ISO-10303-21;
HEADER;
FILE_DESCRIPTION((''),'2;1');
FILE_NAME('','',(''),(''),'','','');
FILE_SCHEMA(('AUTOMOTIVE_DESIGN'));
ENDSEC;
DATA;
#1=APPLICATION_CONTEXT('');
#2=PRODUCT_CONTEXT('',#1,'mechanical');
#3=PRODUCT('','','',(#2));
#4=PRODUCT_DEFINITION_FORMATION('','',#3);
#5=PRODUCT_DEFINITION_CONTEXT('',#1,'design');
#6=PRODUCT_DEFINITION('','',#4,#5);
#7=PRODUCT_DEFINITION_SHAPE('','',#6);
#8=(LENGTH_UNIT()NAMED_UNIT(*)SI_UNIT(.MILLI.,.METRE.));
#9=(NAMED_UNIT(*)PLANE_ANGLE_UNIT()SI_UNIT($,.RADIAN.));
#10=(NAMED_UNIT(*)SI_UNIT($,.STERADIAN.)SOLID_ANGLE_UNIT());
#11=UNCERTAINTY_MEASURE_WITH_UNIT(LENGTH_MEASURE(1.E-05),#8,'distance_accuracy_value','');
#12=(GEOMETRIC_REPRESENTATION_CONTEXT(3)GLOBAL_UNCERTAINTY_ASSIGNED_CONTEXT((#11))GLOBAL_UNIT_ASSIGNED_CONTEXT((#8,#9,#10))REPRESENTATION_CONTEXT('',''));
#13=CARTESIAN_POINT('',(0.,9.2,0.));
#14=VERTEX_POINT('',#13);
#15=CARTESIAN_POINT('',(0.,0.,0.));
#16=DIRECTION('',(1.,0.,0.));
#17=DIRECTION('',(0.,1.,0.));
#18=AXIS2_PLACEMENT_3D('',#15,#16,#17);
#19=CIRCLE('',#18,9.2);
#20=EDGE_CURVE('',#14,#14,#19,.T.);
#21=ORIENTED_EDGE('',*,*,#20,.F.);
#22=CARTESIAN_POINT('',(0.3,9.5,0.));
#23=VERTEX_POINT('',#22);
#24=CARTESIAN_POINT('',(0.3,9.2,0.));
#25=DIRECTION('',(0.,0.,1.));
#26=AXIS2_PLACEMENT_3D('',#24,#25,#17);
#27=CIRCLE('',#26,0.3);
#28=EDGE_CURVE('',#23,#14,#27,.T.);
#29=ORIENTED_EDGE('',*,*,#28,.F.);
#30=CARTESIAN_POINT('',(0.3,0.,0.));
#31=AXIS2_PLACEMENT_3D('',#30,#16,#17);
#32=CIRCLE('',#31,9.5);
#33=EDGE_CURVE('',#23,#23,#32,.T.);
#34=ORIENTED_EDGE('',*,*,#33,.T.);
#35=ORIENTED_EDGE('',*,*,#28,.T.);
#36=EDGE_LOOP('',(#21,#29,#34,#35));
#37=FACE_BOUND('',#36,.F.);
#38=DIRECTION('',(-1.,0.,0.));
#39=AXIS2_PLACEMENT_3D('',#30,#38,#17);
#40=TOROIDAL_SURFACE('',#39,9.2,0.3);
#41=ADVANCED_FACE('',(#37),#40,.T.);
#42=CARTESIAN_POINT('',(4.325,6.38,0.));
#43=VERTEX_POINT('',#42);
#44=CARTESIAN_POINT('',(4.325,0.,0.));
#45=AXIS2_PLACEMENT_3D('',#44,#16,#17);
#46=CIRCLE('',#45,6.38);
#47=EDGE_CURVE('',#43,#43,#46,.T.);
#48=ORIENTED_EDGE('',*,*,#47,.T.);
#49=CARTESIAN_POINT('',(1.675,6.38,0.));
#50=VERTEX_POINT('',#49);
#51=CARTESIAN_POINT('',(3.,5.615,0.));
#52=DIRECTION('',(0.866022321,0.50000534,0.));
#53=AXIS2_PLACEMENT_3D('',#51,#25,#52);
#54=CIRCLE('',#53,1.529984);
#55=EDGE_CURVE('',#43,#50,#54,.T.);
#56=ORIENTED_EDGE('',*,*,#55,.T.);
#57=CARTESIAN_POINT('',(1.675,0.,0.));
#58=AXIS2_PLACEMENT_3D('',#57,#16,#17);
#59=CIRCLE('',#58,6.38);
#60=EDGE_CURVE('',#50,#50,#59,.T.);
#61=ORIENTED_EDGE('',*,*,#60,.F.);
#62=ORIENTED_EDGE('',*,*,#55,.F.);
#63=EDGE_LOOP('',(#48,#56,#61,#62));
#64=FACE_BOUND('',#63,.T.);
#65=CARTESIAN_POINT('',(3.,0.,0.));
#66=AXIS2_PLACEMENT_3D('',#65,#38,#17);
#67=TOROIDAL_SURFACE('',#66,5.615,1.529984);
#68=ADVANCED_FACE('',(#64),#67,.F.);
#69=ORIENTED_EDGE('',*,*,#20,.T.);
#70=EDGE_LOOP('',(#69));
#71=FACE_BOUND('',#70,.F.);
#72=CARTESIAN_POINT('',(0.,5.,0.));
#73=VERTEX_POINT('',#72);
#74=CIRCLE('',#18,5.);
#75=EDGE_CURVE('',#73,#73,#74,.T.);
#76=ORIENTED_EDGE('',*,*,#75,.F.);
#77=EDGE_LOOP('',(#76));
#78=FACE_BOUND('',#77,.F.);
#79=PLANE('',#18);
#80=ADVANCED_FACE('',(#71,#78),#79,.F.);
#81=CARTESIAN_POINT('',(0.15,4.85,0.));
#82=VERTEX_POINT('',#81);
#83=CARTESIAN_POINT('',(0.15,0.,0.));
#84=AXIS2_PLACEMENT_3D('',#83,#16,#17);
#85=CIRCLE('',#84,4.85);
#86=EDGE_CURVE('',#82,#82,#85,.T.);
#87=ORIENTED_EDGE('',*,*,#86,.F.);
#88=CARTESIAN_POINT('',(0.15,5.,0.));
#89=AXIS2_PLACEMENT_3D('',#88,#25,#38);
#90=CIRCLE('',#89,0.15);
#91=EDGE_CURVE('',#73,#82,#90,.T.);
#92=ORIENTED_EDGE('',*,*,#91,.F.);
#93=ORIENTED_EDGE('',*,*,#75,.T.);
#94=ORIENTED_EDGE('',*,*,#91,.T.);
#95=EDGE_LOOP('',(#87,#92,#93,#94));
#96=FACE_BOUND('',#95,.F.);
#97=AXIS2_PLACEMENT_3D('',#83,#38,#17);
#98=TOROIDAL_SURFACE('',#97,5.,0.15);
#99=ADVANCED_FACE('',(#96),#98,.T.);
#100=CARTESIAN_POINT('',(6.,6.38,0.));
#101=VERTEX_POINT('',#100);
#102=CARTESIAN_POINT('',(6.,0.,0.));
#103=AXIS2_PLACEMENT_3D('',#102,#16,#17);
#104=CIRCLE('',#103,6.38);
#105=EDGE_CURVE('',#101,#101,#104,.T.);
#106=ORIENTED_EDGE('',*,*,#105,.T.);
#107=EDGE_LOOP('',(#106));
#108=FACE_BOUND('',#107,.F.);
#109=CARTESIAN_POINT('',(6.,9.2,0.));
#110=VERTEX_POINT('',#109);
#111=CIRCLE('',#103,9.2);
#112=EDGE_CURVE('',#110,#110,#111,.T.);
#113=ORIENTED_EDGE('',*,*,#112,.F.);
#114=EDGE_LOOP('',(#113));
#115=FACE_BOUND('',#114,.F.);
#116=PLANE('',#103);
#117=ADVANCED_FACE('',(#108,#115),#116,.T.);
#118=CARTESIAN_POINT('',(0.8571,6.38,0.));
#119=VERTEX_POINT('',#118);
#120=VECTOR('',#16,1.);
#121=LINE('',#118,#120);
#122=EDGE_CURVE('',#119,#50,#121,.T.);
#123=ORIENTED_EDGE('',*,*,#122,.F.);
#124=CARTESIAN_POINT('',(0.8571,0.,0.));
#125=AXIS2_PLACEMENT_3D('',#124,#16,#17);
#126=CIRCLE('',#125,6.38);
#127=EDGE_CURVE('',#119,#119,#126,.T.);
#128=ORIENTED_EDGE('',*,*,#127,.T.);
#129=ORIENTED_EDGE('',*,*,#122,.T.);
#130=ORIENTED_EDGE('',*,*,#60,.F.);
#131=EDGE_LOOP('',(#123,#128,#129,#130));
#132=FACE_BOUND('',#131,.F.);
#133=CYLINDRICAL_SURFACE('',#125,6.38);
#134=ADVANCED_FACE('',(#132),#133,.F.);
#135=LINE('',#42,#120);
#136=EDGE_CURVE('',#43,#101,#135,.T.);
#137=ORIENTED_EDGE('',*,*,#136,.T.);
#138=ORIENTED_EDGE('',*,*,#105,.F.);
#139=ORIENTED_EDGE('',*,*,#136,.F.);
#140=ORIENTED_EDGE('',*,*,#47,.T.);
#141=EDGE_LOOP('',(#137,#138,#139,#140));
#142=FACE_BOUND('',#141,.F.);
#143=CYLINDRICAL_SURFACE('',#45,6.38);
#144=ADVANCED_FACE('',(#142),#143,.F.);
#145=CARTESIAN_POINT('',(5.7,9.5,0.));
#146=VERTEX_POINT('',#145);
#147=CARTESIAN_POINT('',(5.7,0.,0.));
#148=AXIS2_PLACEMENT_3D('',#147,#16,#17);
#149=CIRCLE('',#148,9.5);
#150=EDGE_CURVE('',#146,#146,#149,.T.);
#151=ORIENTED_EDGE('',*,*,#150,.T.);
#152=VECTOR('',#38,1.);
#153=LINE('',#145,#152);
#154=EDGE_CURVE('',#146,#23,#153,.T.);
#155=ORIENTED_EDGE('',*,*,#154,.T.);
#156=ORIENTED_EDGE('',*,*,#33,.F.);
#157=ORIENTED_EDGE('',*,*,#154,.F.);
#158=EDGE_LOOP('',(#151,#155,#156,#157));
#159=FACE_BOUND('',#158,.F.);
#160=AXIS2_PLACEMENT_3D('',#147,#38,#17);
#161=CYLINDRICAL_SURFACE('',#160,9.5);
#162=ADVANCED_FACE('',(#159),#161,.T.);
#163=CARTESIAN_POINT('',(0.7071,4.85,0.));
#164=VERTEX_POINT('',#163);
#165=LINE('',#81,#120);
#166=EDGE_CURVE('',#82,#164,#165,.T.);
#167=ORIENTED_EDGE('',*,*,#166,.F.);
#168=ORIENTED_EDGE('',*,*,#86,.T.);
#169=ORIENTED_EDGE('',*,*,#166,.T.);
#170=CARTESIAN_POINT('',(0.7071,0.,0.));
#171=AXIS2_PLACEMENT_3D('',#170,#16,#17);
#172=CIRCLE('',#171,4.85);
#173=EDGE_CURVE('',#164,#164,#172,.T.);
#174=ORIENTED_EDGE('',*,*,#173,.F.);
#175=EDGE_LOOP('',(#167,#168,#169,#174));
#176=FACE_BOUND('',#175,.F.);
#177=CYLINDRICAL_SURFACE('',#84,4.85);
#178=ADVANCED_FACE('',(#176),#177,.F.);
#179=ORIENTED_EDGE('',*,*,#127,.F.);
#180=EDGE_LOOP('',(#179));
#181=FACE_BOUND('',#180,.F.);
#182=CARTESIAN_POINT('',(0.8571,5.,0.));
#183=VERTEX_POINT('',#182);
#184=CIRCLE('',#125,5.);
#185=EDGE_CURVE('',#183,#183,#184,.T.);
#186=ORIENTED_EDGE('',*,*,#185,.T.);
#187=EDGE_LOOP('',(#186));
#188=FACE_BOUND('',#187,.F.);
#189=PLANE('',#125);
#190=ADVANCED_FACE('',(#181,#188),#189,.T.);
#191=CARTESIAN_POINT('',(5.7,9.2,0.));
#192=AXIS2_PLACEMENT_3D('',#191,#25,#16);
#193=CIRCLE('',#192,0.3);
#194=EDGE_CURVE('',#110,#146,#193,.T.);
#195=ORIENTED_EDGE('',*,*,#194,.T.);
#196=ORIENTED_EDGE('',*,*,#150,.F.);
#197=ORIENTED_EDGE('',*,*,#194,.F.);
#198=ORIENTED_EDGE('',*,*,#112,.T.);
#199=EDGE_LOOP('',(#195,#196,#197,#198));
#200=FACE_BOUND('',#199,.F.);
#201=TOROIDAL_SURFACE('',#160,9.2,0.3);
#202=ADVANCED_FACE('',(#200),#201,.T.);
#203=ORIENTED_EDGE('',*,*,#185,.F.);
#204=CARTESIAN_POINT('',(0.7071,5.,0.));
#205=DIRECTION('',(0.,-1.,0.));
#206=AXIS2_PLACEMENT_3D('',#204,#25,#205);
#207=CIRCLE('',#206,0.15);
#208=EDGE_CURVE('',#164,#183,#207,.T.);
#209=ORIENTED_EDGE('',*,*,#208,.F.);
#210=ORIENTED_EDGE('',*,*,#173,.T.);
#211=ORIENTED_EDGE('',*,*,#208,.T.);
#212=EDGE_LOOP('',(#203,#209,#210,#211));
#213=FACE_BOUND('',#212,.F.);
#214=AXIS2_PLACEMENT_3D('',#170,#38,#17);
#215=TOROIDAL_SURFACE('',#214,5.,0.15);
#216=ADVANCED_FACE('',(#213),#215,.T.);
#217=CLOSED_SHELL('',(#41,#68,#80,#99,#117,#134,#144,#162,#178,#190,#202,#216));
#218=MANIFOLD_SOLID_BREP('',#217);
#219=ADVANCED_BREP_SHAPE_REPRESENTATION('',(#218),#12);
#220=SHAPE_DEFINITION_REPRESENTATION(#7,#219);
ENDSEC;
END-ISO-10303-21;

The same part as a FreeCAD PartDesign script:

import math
import FreeCAD as App
import Part
import Sketcher

V = App.Vector

doc = App.newDocument("Part")
body = doc.addObject("PartDesign::Body", "Body")

sketch1 = doc.addObject("Sketcher::SketchObject", "Sketch")
body.addObject(sketch1)
sketch1.AttachmentSupport = (doc.XY_Plane, [""])
sketch1.MapMode = "FlatFace"
sketch1.addGeometry([
    Part.ArcOfCircle(Part.Circle(V(0.3, 9.2, 0), V(0, 0, 1), 0.3), math.radians(90), math.radians(180)),
    Part.LineSegment(V(0, 9.2, 0), V(0, 5, 0)),
    Part.ArcOfCircle(Part.Circle(V(0.15, 5, 0), V(0, 0, 1), 0.15), math.radians(180), math.radians(270)),
    Part.LineSegment(V(0.15, 4.85, 0), V(0.7071, 4.85, 0)),
    Part.ArcOfCircle(Part.Circle(V(0.7071, 5, 0), V(0, 0, 1), 0.15), math.radians(-90), math.radians(0)),
    Part.LineSegment(V(0.8571, 5, 0), V(0.8571, 6.38, 0)),
    Part.LineSegment(V(0.8571, 6.38, 0), V(1.675, 6.38, 0)),
    Part.ArcOfCircle(Part.Circle(V(3, 5.615, 0), V(0, 0, 1), 1.529984), math.radians(30.000353), math.radians(149.999647)),
    Part.LineSegment(V(4.325, 6.38, 0), V(6, 6.38, 0)),
    Part.LineSegment(V(6, 6.38, 0), V(6, 9.2, 0)),
    Part.ArcOfCircle(Part.Circle(V(5.7, 9.2, 0), V(0, 0, 1), 0.3), math.radians(0), math.radians(90)),
    Part.LineSegment(V(5.7, 9.5, 0), V(0.3, 9.5, 0)),
], False)
sketch1.addConstraint([
    Sketcher.Constraint("Tangent", 0, 2, 1, 1),
    Sketcher.Constraint("Tangent", 1, 2, 2, 1),
    Sketcher.Constraint("Tangent", 2, 2, 3, 1),
    Sketcher.Constraint("Tangent", 3, 2, 4, 1),
    Sketcher.Constraint("Tangent", 4, 2, 5, 1),
    Sketcher.Constraint("Coincident", 5, 2, 6, 1),
    Sketcher.Constraint("Coincident", 6, 2, 7, 2),
    Sketcher.Constraint("Coincident", 7, 1, 8, 1),
    Sketcher.Constraint("Coincident", 8, 2, 9, 1),
    Sketcher.Constraint("Tangent", 9, 2, 10, 1),
    Sketcher.Constraint("Tangent", 10, 2, 11, 1),
    Sketcher.Constraint("Tangent", 11, 2, 0, 1),
    Sketcher.Constraint("Vertical", 1),
    Sketcher.Constraint("Horizontal", 3),
    Sketcher.Constraint("Vertical", 5),
    Sketcher.Constraint("Horizontal", 6),
    Sketcher.Constraint("Horizontal", 8),
    Sketcher.Constraint("Vertical", 9),
    Sketcher.Constraint("Horizontal", 11),
    Sketcher.Constraint("Equal", 2, 4),
    Sketcher.Constraint("Equal", 0, 10),
    Sketcher.Constraint("PointOnObject", 0, 2, -2),
    Sketcher.Constraint("Horizontal", 6, 2, 7, 1),
    Sketcher.Constraint("Radius", 0, 0.3),
    Sketcher.Constraint("Radius", 2, 0.15),
    Sketcher.Constraint("Radius", 7, 1.53),
    Sketcher.Constraint("DistanceX", 11, 2, 11, 1, 5.4),
    Sketcher.Constraint("DistanceY", 1, 2, 1, 1, 4.2),
    Sketcher.Constraint("DistanceY", -1, 1, 2, 3, 5.0),
    Sketcher.Constraint("DistanceX", -1, 1, 7, 3, 3.0),
    Sketcher.Constraint("DistanceY", 5, 1, 5, 2, 1.38),
    Sketcher.Constraint("DistanceX", 3, 1, 3, 2, 0.557),
    Sketcher.Constraint("DistanceX", 6, 1, 6, 2, 0.818),
])
revolution = doc.addObject("PartDesign::Revolution", "Revolution")
body.addObject(revolution)
revolution.Profile = sketch1
revolution.ReferenceAxis = (sketch1, ["H_Axis"])
revolution.Angle = 360

doc.recompute()
